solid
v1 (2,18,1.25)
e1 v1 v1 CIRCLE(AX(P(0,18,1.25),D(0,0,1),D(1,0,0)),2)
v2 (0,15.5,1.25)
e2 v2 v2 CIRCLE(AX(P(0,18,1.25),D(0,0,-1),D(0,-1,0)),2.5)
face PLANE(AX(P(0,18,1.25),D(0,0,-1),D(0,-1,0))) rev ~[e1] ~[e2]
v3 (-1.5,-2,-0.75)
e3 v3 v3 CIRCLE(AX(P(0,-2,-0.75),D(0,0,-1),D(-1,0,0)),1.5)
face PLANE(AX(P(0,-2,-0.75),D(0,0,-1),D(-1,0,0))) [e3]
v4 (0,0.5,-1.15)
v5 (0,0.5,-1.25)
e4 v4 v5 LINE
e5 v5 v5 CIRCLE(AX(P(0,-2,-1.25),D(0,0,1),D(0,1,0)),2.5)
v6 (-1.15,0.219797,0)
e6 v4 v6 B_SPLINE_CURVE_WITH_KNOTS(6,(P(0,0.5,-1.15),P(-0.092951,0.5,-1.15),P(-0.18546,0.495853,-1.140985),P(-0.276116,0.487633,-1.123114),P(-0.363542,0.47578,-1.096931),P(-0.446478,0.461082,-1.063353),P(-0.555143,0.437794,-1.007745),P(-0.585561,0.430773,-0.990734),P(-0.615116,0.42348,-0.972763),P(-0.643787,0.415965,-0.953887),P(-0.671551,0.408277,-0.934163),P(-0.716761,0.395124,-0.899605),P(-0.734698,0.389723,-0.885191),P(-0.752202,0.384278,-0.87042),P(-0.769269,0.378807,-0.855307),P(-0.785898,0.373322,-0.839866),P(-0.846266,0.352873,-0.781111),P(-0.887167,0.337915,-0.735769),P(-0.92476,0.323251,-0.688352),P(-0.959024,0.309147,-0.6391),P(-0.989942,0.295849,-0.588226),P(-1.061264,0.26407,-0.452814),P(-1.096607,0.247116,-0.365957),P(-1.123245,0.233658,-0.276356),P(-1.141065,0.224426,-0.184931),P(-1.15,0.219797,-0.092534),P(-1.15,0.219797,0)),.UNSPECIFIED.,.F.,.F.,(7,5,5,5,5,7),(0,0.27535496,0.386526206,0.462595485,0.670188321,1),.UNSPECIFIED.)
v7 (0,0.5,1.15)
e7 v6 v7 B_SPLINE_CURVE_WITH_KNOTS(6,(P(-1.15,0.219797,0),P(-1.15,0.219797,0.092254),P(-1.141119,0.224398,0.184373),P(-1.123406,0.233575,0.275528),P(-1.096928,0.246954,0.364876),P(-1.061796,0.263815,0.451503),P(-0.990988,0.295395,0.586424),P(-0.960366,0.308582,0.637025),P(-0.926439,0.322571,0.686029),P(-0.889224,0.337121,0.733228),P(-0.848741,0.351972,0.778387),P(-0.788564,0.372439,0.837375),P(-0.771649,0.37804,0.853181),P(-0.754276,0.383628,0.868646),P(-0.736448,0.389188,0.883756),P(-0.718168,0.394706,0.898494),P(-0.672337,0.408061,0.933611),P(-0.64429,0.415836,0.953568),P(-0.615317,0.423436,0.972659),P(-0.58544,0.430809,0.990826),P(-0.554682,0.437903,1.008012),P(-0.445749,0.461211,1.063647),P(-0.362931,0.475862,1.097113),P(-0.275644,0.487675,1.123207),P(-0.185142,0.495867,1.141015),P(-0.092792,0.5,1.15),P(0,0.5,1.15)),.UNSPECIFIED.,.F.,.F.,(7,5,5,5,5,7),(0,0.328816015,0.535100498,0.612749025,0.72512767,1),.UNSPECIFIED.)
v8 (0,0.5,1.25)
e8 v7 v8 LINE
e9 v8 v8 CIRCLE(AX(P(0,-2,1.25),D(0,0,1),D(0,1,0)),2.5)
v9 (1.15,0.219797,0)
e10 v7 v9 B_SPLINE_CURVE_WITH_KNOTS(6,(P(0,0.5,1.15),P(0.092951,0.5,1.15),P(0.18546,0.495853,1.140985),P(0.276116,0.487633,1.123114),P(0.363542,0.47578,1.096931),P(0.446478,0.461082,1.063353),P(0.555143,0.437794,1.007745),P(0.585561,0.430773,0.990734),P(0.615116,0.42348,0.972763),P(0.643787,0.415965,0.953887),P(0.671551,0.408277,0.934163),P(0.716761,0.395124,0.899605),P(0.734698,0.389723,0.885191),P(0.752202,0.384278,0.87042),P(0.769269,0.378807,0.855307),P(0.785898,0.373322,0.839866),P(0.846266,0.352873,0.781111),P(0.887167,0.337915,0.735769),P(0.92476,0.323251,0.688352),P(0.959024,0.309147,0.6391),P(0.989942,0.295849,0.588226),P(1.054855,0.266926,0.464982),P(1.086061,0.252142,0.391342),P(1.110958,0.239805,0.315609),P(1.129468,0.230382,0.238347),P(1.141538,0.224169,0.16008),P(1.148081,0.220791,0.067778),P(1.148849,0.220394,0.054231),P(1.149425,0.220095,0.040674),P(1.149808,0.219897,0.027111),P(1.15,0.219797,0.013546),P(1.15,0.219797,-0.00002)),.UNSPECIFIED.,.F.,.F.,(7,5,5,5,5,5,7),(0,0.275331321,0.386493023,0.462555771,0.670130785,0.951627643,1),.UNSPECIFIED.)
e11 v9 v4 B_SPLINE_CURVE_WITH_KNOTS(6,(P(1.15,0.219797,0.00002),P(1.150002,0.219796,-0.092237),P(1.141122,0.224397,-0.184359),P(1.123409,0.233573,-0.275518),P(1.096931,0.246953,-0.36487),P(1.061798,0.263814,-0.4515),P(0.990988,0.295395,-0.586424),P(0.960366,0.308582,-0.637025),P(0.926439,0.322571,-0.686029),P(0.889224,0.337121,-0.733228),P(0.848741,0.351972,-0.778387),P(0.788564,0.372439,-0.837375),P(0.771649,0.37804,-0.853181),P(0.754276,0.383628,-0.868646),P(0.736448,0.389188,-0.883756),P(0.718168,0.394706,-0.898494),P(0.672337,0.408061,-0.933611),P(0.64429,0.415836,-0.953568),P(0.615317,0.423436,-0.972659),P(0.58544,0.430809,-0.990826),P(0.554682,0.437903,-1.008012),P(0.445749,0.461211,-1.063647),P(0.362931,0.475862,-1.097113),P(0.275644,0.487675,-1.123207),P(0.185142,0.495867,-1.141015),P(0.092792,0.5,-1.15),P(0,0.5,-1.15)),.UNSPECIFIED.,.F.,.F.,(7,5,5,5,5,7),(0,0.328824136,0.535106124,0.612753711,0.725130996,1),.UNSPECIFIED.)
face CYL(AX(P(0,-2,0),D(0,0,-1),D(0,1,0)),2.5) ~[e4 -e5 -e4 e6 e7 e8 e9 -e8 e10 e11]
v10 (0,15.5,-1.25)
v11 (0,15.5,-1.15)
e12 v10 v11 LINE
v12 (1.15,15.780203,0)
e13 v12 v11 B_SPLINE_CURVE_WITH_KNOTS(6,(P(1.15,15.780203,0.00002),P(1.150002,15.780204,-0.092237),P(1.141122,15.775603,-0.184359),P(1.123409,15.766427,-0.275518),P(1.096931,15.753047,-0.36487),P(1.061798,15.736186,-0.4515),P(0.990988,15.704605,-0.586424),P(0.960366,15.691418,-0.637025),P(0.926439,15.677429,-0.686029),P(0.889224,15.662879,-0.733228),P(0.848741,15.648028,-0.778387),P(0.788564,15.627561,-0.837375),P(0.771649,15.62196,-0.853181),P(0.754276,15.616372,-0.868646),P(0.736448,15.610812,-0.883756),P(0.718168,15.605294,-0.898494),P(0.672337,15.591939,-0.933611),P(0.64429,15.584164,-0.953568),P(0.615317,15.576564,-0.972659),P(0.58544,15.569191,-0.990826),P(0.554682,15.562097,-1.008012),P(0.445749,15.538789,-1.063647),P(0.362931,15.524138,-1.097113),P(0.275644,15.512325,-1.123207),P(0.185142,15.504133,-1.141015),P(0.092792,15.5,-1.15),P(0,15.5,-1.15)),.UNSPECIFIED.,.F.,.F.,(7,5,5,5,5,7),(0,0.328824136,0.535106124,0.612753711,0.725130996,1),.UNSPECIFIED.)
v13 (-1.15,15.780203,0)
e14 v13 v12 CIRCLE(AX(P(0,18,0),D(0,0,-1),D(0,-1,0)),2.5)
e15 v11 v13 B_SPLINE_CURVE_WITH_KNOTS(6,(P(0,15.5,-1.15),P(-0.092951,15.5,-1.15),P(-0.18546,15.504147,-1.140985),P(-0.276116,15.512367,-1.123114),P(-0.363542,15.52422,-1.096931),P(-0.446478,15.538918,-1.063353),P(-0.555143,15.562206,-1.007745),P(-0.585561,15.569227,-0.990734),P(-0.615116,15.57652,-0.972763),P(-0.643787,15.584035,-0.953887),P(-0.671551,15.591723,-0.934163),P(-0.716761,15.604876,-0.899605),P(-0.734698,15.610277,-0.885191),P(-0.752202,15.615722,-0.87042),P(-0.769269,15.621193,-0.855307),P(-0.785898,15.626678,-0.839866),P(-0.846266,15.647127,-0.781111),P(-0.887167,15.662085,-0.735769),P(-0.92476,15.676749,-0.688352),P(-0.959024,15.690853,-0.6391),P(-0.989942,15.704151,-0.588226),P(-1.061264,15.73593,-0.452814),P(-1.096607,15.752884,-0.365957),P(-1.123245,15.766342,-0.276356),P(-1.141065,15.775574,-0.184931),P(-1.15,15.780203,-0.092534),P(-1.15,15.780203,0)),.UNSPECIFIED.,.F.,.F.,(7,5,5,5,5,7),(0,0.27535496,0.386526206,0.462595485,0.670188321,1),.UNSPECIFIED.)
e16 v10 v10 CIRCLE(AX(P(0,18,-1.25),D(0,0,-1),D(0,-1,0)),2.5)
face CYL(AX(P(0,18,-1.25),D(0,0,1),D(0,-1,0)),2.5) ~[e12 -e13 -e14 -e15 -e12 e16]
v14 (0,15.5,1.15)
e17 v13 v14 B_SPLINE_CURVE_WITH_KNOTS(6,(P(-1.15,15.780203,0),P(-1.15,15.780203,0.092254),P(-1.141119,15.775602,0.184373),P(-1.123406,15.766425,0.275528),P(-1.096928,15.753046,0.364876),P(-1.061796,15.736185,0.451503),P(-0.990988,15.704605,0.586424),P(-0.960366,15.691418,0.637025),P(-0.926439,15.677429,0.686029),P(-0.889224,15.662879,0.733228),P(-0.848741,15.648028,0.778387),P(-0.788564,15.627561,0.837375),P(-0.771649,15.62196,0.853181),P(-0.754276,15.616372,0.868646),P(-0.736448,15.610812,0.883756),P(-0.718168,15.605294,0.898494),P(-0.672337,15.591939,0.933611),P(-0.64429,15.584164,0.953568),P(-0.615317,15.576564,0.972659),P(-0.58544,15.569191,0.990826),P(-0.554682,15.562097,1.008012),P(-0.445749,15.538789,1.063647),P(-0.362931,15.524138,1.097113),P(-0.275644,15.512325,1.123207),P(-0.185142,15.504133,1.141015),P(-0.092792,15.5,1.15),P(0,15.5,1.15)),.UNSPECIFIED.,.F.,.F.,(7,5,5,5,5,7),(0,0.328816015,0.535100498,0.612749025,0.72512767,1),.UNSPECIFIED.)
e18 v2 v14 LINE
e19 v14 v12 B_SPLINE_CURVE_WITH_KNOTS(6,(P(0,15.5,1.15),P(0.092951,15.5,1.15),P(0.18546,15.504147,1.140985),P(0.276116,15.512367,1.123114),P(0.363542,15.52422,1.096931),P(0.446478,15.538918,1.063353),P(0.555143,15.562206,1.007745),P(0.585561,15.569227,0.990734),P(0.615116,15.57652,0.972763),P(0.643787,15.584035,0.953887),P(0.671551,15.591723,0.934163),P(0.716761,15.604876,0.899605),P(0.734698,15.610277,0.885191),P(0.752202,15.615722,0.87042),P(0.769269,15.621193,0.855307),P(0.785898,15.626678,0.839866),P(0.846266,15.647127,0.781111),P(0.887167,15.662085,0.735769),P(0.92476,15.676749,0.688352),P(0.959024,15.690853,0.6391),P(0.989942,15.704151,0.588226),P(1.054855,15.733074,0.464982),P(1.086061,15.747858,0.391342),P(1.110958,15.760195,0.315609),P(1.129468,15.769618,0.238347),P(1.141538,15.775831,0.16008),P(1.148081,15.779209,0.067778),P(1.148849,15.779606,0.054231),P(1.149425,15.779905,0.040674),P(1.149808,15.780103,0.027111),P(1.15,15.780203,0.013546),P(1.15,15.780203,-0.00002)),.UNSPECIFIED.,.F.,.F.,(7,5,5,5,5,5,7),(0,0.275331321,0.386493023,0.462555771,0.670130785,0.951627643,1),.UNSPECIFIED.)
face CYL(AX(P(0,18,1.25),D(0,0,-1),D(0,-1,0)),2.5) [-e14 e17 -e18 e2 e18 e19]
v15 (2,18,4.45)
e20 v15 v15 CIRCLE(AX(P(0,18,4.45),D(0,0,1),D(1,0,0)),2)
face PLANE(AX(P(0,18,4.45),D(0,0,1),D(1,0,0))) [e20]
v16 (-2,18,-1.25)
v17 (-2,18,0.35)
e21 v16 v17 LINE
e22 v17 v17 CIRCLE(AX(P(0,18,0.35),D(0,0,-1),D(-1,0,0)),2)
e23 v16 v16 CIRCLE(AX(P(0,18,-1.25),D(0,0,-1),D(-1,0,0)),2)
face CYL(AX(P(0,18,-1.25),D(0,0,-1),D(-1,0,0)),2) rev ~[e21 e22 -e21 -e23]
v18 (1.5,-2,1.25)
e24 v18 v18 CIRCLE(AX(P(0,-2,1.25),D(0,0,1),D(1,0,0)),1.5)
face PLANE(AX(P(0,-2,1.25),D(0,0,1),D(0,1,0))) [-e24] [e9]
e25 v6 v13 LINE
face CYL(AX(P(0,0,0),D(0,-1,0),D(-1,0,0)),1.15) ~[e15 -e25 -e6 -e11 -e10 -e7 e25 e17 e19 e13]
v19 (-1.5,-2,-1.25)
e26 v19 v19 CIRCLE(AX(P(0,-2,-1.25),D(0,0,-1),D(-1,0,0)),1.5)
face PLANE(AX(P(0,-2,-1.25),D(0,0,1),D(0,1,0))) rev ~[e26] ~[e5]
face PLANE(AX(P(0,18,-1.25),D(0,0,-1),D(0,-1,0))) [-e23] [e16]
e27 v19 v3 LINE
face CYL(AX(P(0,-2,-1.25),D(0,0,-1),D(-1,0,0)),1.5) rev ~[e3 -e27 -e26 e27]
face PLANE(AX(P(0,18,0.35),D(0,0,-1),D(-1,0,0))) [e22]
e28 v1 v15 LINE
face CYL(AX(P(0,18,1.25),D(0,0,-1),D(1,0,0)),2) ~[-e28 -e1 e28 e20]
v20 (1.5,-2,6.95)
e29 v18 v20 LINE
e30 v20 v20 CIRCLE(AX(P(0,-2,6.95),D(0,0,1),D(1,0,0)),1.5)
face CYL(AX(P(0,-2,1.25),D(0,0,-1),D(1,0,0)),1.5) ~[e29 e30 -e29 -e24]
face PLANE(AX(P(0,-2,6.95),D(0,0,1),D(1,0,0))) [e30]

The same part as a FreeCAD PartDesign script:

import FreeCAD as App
import Part
import Sketcher
Q = App.Units.Quantity


def add_polygon(sketch, points):
    """Adds a closed chain of lines whose ends are joined by coincident constraints."""
    first, n = sketch.GeometryCount, len(points)
    for a, b in zip(points, points[1:] + points[:1]):
        sketch.addGeometry(Part.LineSegment(App.Vector(*a, 0), App.Vector(*b, 0)), False)
    for i in range(n):
        sketch.addConstraint(Sketcher.Constraint("Coincident", first + i, 2, first + (i + 1) % n, 1))

doc = App.newDocument("Part")
body = doc.addObject("PartDesign::Body", "Body")

# Sketch on XZ plane
sketch1 = body.newObject("Sketcher::SketchObject", "Sketch")
sketch1.AttachmentSupport = (doc.getObject("XZ_Plane"), [""])
sketch1.MapMode = "FlatFace"
sketch1.addGeometry(Part.Circle(App.Vector(0, 0, 0), App.Vector(0, 0, 1), 1.15), False)
sketch1.addConstraint([
    Sketcher.Constraint("Coincident", 0, 3, -1, 1),
    Sketcher.Constraint("Diameter", 0, Q("2.3 mm")),
])
pad1 = body.newObject("PartDesign::Pad", "Pad")
pad1.Profile = sketch1
pad1.Length = 16
pad1.Reversed = True

# Sketch on YZ plane
sketch2 = body.newObject("Sketcher::SketchObject", "Sketch001")
sketch2.AttachmentSupport = (doc.getObject("YZ_Plane"), [""])
sketch2.MapMode = "FlatFace"
add_polygon(sketch2, [(18, 1.25), (15.5, 1.25), (15.5, -1.25), (18, -1.25)])  # lines 0-3
sketch2.addGeometry(Part.LineSegment(App.Vector(18, 1.25, 0), App.Vector(18, -1.25, 0)), True)  # axis
sketch2.addConstraint([
    Sketcher.Constraint("Horizontal", 0),
    Sketcher.Constraint("Vertical", 1),
    Sketcher.Constraint("Horizontal", 2),
    Sketcher.Constraint("Vertical", 3),
    Sketcher.Constraint("Vertical", 4),
    Sketcher.Constraint("Coincident", 4, 1, 3, 2),
    Sketcher.Constraint("Horizontal", 1, 2, 4, 2),
    Sketcher.Constraint("Equal", 2, 1),
    Sketcher.Constraint("DistanceX", 0, 2, 0, 1, Q("2.5 mm")),
    Sketcher.Constraint("DistanceY", -1, 1, 0, 2, Q("1.25 mm")),
    Sketcher.Constraint("DistanceX", -1, 1, 2, 2, Q("18 mm")),
])
revolution = body.newObject("PartDesign::Revolution", "Revolution")
revolution.Profile = sketch2
revolution.ReferenceAxis = (sketch2, ["Axis0"])
revolution.Angle = 360

# Sketch on XY plane
sketch3 = body.newObject("Sketcher::SketchObject", "Sketch002")
sketch3.AttachmentSupport = (doc.getObject("XY_Plane"), [""])
sketch3.MapMode = "FlatFace"
sketch3.AttachmentOffset = App.Placement(App.Vector(0, 0, 1.25), App.Rotation())
sketch3.addGeometry(Part.Circle(App.Vector(0, 18, 0), App.Vector(0, 0, 1), 2), False)
sketch3.addConstraint([
    Sketcher.Constraint("PointOnObject", 0, 3, -2),
    Sketcher.Constraint("Diameter", 0, Q("4 mm")),
    Sketcher.Constraint("DistanceY", -1, 1, 0, 3, Q("18 mm")),
])
pad2 = body.newObject("PartDesign::Pad", "Pad001")
pad2.Profile = sketch3
pad2.Length = 3.2

# Sketch on XY plane
sketch4 = body.newObject("Sketcher::SketchObject", "Sketch003")
sketch4.AttachmentSupport = (doc.getObject("XY_Plane"), [""])
sketch4.MapMode = "FlatFace"
sketch4.AttachmentOffset = App.Placement(App.Vector(0, 0, -1.25), App.Rotation())
sketch4.addGeometry(Part.Circle(App.Vector(0, 18, 0), App.Vector(0, 0, 1), 2), False)
sketch4.addConstraint([
    Sketcher.Constraint("PointOnObject", 0, 3, -2),
    Sketcher.Constraint("Diameter", 0, Q("4 mm")),
    Sketcher.Constraint("DistanceY", -1, 1, 0, 3, Q("18 mm")),
])
pocket1 = body.newObject("PartDesign::Pocket", "Pocket")
pocket1.Profile = sketch4
pocket1.Length = 1.6
pocket1.Reversed = True

# Sketch on YZ plane
sketch5 = body.newObject("Sketcher::SketchObject", "Sketch004")
sketch5.AttachmentSupport = (doc.getObject("YZ_Plane"), [""])
sketch5.MapMode = "FlatFace"
add_polygon(sketch5, [(0.5, -1.25), (0.5, 1.25), (-2, 1.25), (-2, -1.25)])  # lines 0-3
sketch5.addGeometry(Part.LineSegment(App.Vector(-2, -1.25, 0), App.Vector(-2, 1.25, 0)), True)  # axis
sketch5.addConstraint([
    Sketcher.Constraint("Vertical", 0),
    Sketcher.Constraint("Horizontal", 1),
    Sketcher.Constraint("Vertical", 2),
    Sketcher.Constraint("Horizontal", 3),
    Sketcher.Constraint("Vertical", 4),
    Sketcher.Constraint("Coincident", 4, 1, 2, 2),
    Sketcher.Constraint("Horizontal", 0, 2, 4, 2),
    Sketcher.Constraint("Equal", 3, 0),
    Sketcher.Constraint("DistanceX", 1, 2, 1, 1, Q("2.5 mm")),
    Sketcher.Constraint("DistanceX", -1, 1, 0, 2, Q("0.5 mm")),
    Sketcher.Constraint("DistanceY", -1, 1, 0, 2, Q("1.25 mm")),
])
revolution2 = body.newObject("PartDesign::Revolution", "Revolution001")
revolution2.Profile = sketch5
revolution2.ReferenceAxis = (sketch5, ["Axis0"])
revolution2.Angle = 360

# Sketch on XY plane
sketch6 = body.newObject("Sketcher::SketchObject", "Sketch005")
sketch6.AttachmentSupport = (doc.getObject("XY_Plane"), [""])
sketch6.MapMode = "FlatFace"
sketch6.AttachmentOffset = App.Placement(App.Vector(0, 0, 1.25), App.Rotation())
sketch6.addGeometry(Part.Circle(App.Vector(0, -2, 0), App.Vector(0, 0, 1), 1.5), False)
sketch6.addConstraint([
    Sketcher.Constraint("PointOnObject", 0, 3, -2),
    Sketcher.Constraint("Diameter", 0, Q("3 mm")),
    Sketcher.Constraint("DistanceY", 0, 3, -1, 1, Q("2 mm")),
])
pad3 = body.newObject("PartDesign::Pad", "Pad002")
pad3.Profile = sketch6
pad3.Length = 5.7

# Sketch on XY plane
sketch7 = body.newObject("Sketcher::SketchObject", "Sketch006")
sketch7.AttachmentSupport = (doc.getObject("XY_Plane"), [""])
sketch7.MapMode = "FlatFace"
sketch7.AttachmentOffset = App.Placement(App.Vector(0, 0, -1.25), App.Rotation())
sketch7.addGeometry(Part.Circle(App.Vector(0, -2, 0), App.Vector(0, 0, 1), 1.5), False)
sketch7.addConstraint([
    Sketcher.Constraint("PointOnObject", 0, 3, -2),
    Sketcher.Constraint("Diameter", 0, Q("3 mm")),
    Sketcher.Constraint("DistanceY", 0, 3, -1, 1, Q("2 mm")),
])
pocket2 = body.newObject("PartDesign::Pocket", "Pocket001")
pocket2.Profile = sketch7
pocket2.Length = 0.5
pocket2.Reversed = True

doc.recompute()
